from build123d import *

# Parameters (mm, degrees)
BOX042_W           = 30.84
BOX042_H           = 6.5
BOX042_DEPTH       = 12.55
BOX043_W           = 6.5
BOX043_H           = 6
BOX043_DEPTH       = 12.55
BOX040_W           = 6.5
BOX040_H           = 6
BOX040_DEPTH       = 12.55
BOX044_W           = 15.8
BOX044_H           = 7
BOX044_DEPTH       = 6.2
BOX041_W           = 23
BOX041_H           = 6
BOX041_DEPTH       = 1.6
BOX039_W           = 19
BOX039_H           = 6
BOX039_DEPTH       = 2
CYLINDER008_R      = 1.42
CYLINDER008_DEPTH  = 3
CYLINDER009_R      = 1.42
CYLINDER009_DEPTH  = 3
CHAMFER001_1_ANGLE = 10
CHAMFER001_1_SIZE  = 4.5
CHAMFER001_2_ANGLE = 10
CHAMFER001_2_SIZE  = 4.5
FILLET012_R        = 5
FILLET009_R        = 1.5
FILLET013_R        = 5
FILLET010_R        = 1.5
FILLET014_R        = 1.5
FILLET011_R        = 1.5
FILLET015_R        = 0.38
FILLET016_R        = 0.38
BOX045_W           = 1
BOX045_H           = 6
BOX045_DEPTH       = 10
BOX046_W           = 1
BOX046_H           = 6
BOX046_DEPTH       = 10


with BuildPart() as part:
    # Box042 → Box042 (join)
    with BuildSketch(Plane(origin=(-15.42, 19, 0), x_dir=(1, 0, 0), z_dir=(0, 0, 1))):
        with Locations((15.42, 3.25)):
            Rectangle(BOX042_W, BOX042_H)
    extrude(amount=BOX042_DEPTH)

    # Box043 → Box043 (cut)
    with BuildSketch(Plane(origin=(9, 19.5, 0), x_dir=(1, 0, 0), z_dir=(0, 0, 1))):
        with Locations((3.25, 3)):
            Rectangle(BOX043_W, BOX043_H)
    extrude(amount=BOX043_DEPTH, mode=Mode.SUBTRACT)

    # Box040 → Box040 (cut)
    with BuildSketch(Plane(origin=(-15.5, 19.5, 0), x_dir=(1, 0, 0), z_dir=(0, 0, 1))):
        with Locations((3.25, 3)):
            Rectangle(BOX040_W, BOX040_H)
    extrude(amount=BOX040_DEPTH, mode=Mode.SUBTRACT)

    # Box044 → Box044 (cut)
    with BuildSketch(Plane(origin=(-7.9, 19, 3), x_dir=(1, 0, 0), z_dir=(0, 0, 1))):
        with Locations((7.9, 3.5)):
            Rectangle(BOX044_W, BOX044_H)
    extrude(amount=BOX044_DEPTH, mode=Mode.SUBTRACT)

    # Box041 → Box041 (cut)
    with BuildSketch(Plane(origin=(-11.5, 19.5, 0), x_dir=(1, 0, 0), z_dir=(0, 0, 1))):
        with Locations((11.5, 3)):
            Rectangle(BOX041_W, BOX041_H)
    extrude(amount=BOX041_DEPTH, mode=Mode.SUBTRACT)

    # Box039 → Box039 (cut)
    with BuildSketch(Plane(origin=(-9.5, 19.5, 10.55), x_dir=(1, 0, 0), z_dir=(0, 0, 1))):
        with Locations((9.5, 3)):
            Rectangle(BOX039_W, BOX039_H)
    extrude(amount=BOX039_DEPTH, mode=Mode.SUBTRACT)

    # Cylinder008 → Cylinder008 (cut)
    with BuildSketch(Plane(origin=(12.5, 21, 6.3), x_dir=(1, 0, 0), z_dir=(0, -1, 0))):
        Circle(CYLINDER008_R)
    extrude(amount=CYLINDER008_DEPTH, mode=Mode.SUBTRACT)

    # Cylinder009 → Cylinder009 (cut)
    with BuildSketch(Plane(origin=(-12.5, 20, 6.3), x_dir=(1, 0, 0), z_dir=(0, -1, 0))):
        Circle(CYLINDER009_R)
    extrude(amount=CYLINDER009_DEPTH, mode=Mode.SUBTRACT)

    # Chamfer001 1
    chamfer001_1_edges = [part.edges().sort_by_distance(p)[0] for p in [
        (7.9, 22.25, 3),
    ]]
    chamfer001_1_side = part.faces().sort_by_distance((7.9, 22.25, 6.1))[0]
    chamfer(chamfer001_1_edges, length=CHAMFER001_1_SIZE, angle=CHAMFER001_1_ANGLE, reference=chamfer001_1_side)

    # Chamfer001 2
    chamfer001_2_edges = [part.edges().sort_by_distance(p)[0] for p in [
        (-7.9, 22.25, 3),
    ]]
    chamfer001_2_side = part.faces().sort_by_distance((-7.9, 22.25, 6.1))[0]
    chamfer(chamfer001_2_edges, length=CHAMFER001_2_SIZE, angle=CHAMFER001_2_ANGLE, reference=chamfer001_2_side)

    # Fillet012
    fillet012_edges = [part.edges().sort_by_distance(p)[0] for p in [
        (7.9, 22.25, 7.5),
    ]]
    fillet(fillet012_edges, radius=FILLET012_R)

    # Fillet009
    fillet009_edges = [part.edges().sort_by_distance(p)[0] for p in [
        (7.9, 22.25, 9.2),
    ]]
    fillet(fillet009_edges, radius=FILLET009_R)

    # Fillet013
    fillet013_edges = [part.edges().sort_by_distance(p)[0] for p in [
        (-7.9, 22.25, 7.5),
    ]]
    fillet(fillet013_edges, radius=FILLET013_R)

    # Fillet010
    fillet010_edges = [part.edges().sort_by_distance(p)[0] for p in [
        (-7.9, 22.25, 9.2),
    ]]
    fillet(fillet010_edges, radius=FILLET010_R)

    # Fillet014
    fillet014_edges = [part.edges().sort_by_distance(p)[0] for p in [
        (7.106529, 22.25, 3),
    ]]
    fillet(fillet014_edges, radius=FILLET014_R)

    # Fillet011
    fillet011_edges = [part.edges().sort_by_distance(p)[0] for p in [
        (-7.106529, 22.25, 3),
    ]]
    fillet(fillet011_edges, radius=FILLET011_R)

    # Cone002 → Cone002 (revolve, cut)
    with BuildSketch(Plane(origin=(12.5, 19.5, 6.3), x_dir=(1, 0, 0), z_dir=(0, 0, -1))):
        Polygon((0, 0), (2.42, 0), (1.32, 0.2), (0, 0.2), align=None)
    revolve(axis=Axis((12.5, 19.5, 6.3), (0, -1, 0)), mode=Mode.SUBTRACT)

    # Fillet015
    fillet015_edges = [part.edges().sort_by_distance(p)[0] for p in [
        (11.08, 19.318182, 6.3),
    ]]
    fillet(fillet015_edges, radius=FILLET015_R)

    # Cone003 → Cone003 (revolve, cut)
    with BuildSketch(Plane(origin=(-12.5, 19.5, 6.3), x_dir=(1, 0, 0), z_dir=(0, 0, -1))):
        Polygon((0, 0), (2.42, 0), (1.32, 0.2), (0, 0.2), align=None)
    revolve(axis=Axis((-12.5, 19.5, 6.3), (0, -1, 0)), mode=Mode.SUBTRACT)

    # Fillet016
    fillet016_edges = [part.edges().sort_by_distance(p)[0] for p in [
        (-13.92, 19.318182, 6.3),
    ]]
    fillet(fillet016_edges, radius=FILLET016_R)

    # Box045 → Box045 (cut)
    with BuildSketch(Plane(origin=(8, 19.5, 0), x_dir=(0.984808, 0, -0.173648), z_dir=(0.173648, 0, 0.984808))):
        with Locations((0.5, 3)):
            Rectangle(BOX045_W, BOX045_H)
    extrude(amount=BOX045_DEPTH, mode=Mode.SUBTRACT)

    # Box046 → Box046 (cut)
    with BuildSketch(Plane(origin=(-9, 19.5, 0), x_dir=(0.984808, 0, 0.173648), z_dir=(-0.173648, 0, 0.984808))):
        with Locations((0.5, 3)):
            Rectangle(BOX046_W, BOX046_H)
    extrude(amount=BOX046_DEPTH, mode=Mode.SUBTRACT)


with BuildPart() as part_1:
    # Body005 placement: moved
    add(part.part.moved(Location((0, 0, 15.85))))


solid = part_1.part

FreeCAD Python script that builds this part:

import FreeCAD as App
import Part
import Sketcher
from FreeCAD import Vector
Q = App.Units.Quantity


def edges_at(feature, points):
    """Names of the edges that pass closest to the given points."""
    edges = feature.Shape.Edges
    near = lambda p: min(range(len(edges)), key=lambda i: edges[i].distToShape(Part.Vertex(*p))[0])
    return sorted({f"Edge{near(p) + 1}" for p in points})

doc = App.newDocument("Part")
body = doc.addObject("PartDesign::Body", "Body")

# Sketch on XY plane
sketch1 = doc.addObject("Sketcher::SketchObject", "Sketch")
body.addObject(sketch1)
sketch1.AttachmentSupport = (doc.XY_Plane, [""])
sketch1.MapMode = "FlatFace"
sketch1.addGeometry([
    Part.LineSegment(Vector(-15, 26, 0), Vector(-15, 19, 0)),
    Part.LineSegment(Vector(-15, 19, 0), Vector(15, 19, 0)),
    Part.LineSegment(Vector(15, 19, 0), Vector(15, 26, 0)),
    Part.LineSegment(Vector(15, 26, 0), Vector(-15, 26, 0)),
], False)
sketch1.addConstraint([
    Sketcher.Constraint("Coincident", 0, 2, 1, 1),
    Sketcher.Constraint("Coincident", 1, 2, 2, 1),
    Sketcher.Constraint("Coincident", 2, 2, 3, 1),
    Sketcher.Constraint("Coincident", 3, 2, 0, 1),
    Sketcher.Constraint("Vertical", 0),
    Sketcher.Constraint("Horizontal", 1),
    Sketcher.Constraint("Vertical", 2),
    Sketcher.Constraint("Horizontal", 3),
    Sketcher.Constraint("DistanceY", 0, 2, 0, 1, Q("6.5 mm")),
    Sketcher.Constraint("DistanceY", -1, 1, 0, 2, Q("19 mm")),
    Sketcher.Constraint("DistanceX", 1, 1, 1, 2, Q("30.84 mm")),
    Sketcher.Constraint("DistanceX", 0, 2, -1, 1, Q("15.42 mm")),
])
pad1 = doc.addObject("PartDesign::Pad", "Pad")
body.addObject(pad1)
pad1.Profile = sketch1
pad1.Length = 12.55

# Sketch on XY plane
sketch2 = doc.addObject("Sketcher::SketchObject", "Sketch001")
body.addObject(sketch2)
sketch2.AttachmentSupport = (doc.XY_Plane, [""])
sketch2.MapMode = "FlatFace"
sketch2.addGeometry([
    Part.LineSegment(Vector(9, 26, 0), Vector(9, 20, 0)),
    Part.LineSegment(Vector(9, 20, 0), Vector(16, 20, 0)),
    Part.LineSegment(Vector(16, 20, 0), Vector(16, 26, 0)),
    Part.LineSegment(Vector(16, 26, 0), Vector(9, 26, 0)),
], False)
sketch2.addConstraint([
    Sketcher.Constraint("Coincident", 0, 2, 1, 1),
    Sketcher.Constraint("Coincident", 1, 2, 2, 1),
    Sketcher.Constraint("Coincident", 2, 2, 3, 1),
    Sketcher.Constraint("Coincident", 3, 2, 0, 1),
    Sketcher.Constraint("Vertical", 0),
    Sketcher.Constraint("Horizontal", 1),
    Sketcher.Constraint("Vertical", 2),
    Sketcher.Constraint("Horizontal", 3),
    Sketcher.Constraint("DistanceY", 0, 2, 0, 1, Q("6 mm")),
    Sketcher.Constraint("DistanceX", 1, 1, 1, 2, Q("6.5 mm")),
    Sketcher.Constraint("DistanceX", -1, 1, 0, 2, Q("9 mm")),
    Sketcher.Constraint("DistanceY", -1, 1, 0, 2, Q("19.5 mm")),
])
pocket1 = doc.addObject("PartDesign::Pocket", "Pocket")
body.addObject(pocket1)
pocket1.Profile = sketch2
pocket1.Length = 12.55
pocket1.Reversed = True

# Sketch on XY plane
sketch3 = doc.addObject("Sketcher::SketchObject", "Sketch002")
body.addObject(sketch3)
sketch3.AttachmentSupport = (doc.XY_Plane, [""])
sketch3.MapMode = "FlatFace"
sketch3.addGeometry([
    Part.LineSegment(Vector(-16, 26, 0), Vector(-16, 20, 0)),
    Part.LineSegment(Vector(-16, 20, 0), Vector(-9, 20, 0)),
    Part.LineSegment(Vector(-9, 20, 0), Vector(-9, 26, 0)),
    Part.LineSegment(Vector(-9, 26, 0), Vector(-16, 26, 0)),
], False)
sketch3.addConstraint([
    Sketcher.Constraint("Coincident", 0, 2, 1, 1),
    Sketcher.Constraint("Coincident", 1, 2, 2, 1),
    Sketcher.Constraint("Coincident", 2, 2, 3, 1),
    Sketcher.Constraint("Coincident", 3, 2, 0, 1),
    Sketcher.Constraint("Vertical", 0),
    Sketcher.Constraint("Horizontal", 1),
    Sketcher.Constraint("Vertical", 2),
    Sketcher.Constraint("Horizontal", 3),
    Sketcher.Constraint("DistanceY", 0, 2, 0, 1, Q("6 mm")),
    Sketcher.Constraint("DistanceX", 1, 1, 1, 2, Q("6.5 mm")),
    Sketcher.Constraint("DistanceX", 1, 2, -1, 1, Q("9 mm")),
    Sketcher.Constraint("DistanceY", -1, 1, 0, 2, Q("19.5 mm")),
])
pocket2 = doc.addObject("PartDesign::Pocket", "Pocket001")
body.addObject(pocket2)
pocket2.Profile = sketch3
pocket2.Length = 12.55
pocket2.Reversed = True

# Sketch on XY plane
sketch4 = doc.addObject("Sketcher::SketchObject", "Sketch003")
body.addObject(sketch4)
sketch4.AttachmentSupport = (doc.XY_Plane, [""])
sketch4.MapMode = "FlatFace"
sketch4.AttachmentOffset = App.Placement(Vector(0, 0, 3), App.Rotation())
sketch4.addGeometry([
    Part.LineSegment(Vector(-8, 26, 0), Vector(-8, 19, 0)),
    Part.LineSegment(Vector(-8, 19, 0), Vector(8, 19, 0)),
    Part.LineSegment(Vector(8, 19, 0), Vector(8, 26, 0)),
    Part.LineSegment(Vector(8, 26, 0), Vector(-8, 26, 0)),
], False)
sketch4.addConstraint([
    Sketcher.Constraint("Coincident", 0, 2, 1, 1),
    Sketcher.Constraint("Coincident", 1, 2, 2, 1),
    Sketcher.Constraint("Coincident", 2, 2, 3, 1),
    Sketcher.Constraint("Coincident", 3, 2, 0, 1),
    Sketcher.Constraint("Vertical", 0),
    Sketcher.Constraint("Horizontal", 1),
    Sketcher.Constraint("Vertical", 2),
    Sketcher.Constraint("Horizontal", 3),
    Sketcher.Constraint("DistanceY", 0, 2, 0, 1, Q("7 mm")),
    Sketcher.Constraint("DistanceX", 1, 1, 1, 2, Q("15.8 mm")),
    Sketcher.Constraint("DistanceY", -1, 1, 0, 2, Q("19 mm")),
    Sketcher.Constraint("DistanceX", 0, 2, -1, 1, Q("7.9 mm")),
])
pocket3 = doc.addObject("PartDesign::Pocket", "Pocket002")
body.addObject(pocket3)
pocket3.Profile = sketch4
pocket3.Length = 6.2
pocket3.Reversed = True

# Sketch on XY plane
sketch5 = doc.addObject("Sketcher::SketchObject", "Sketch004")
body.addObject(sketch5)
sketch5.AttachmentSupport = (doc.XY_Plane, [""])
sketch5.MapMode = "FlatFace"
sketch5.addGeometry([
    Part.LineSegment(Vector(-12, 26, 0), Vector(-12, 20, 0)),
    Part.LineSegment(Vector(-12, 20, 0), Vector(12, 20, 0)),
    Part.LineSegment(Vector(12, 20, 0), Vector(12, 26, 0)),
    Part.LineSegment(Vector(12, 26, 0), Vector(-12, 26, 0)),
], False)
sketch5.addConstraint([
    Sketcher.Constraint("Coincident", 0, 2, 1, 1),
    Sketcher.Constraint("Coincident", 1, 2, 2, 1),
    Sketcher.Constraint("Coincident", 2, 2, 3, 1),
    Sketcher.Constraint("Coincident", 3, 2, 0, 1),
    Sketcher.Constraint("Vertical", 0),
    Sketcher.Constraint("Horizontal", 1),
    Sketcher.Constraint("Vertical", 2),
    Sketcher.Constraint("Horizontal", 3),
    Sketcher.Constraint("DistanceX", 1, 1, 1, 2, Q("23 mm")),
    Sketcher.Constraint("DistanceY", 0, 2, 0, 1, Q("6 mm")),
    Sketcher.Constraint("DistanceX", 0, 2, -1, 1, Q("11.5 mm")),
    Sketcher.Constraint("DistanceY", -1, 1, 0, 2, Q("19.5 mm")),
])
pocket4 = doc.addObject("PartDesign::Pocket", "Pocket003")
body.addObject(pocket4)
pocket4.Profile = sketch5
pocket4.Length = 1.6
pocket4.Reversed = True

# Sketch on XY plane
sketch6 = doc.addObject("Sketcher::SketchObject", "Sketch005")
body.addObject(sketch6)
sketch6.AttachmentSupport = (doc.XY_Plane, [""])
sketch6.MapMode = "FlatFace"
sketch6.AttachmentOffset = App.Placement(Vector(0, 0, 10.55), App.Rotation())
sketch6.addGeometry([
    Part.LineSegment(Vector(-10, 26, 0), Vector(-10, 20, 0)),
    Part.LineSegment(Vector(-10, 20, 0), Vector(10, 20, 0)),
    Part.LineSegment(Vector(10, 20, 0), Vector(10, 26, 0)),
    Part.LineSegment(Vector(10, 26, 0), Vector(-10, 26, 0)),
], False)
sketch6.addConstraint([
    Sketcher.Constraint("Coincident", 0, 2, 1, 1),
    Sketcher.Constraint("Coincident", 1, 2, 2, 1),
    Sketcher.Constraint("Coincident", 2, 2, 3, 1),
    Sketcher.Constraint("Coincident", 3, 2, 0, 1),
    Sketcher.Constraint("Vertical", 0),
    Sketcher.Constraint("Horizontal", 1),
    Sketcher.Constraint("Vertical", 2),
    Sketcher.Constraint("Horizontal", 3),
    Sketcher.Constraint("DistanceX", 1, 1, 1, 2, Q("19 mm")),
    Sketcher.Constraint("DistanceY", 0, 2, 0, 1, Q("6 mm")),
    Sketcher.Constraint("DistanceX", 0, 2, -1, 1, Q("9.5 mm")),
    Sketcher.Constraint("DistanceY", -1, 1, 0, 2, Q("19.5 mm")),
])
pocket5 = doc.addObject("PartDesign::Pocket", "Pocket004")
body.addObject(pocket5)
pocket5.Profile = sketch6
pocket5.Length = 2
pocket5.Reversed = True

# Sketch on XZ plane
sketch7 = doc.addObject("Sketcher::SketchObject", "Sketch006")
body.addObject(sketch7)
sketch7.AttachmentSupport = (doc.XZ_Plane, [""])
sketch7.MapMode = "FlatFace"
sketch7.AttachmentOffset = App.Placement(Vector(0, 0, -21), App.Rotation())
sketch7.addGeometry(Part.Circle(Vector(12.5, 6.3, 0), Vector(0, 0, 1), 1.4), False)
sketch7.addConstraint([
    Sketcher.Constraint("Diameter", 0, Q("2.84 mm")),
    Sketcher.Constraint("DistanceX", -1, 1, 0, 3, Q("12.5 mm")),
    Sketcher.Constraint("DistanceY", -1, 1, 0, 3, Q("6.3 mm")),
])
pocket6 = doc.addObject("PartDesign::Pocket", "Pocket005")
body.addObject(pocket6)
pocket6.Profile = sketch7
pocket6.Length = 3
pocket6.Reversed = True

# Sketch on XZ plane
sketch8 = doc.addObject("Sketcher::SketchObject", "Sketch007")
body.addObject(sketch8)
sketch8.AttachmentSupport = (doc.XZ_Plane, [""])
sketch8.MapMode = "FlatFace"
sketch8.AttachmentOffset = App.Placement(Vector(0, 0, -20), App.Rotation())
sketch8.addGeometry(Part.Circle(Vector(-12.5, 6.3, 0), Vector(0, 0, 1), 1.4), False)
sketch8.addConstraint([
    Sketcher.Constraint("Diameter", 0, Q("2.84 mm")),
    Sketcher.Constraint("DistanceX", 0, 3, -1, 1, Q("12.5 mm")),
    Sketcher.Constraint("DistanceY", -1, 1, 0, 3, Q("6.3 mm")),
])
pocket7 = doc.addObject("PartDesign::Pocket", "Pocket006")
body.addObject(pocket7)
pocket7.Profile = sketch8
pocket7.Length = 3
pocket7.Reversed = True
doc.recompute()

chamfer = doc.addObject("PartDesign::Chamfer", "Chamfer")
body.addObject(chamfer)
chamfer.Base = (pocket7, edges_at(pocket7, [(7.9, 22.25, 3)]))
chamfer.ChamferType = "Distance and Angle"
chamfer.Size = 4.5
chamfer.Angle = 10
chamfer.FlipDirection = True
doc.recompute()

chamfer2 = doc.addObject("PartDesign::Chamfer", "Chamfer001")
body.addObject(chamfer2)
chamfer2.Base = (chamfer, edges_at(chamfer, [(-7.9, 22.25, 3)]))
chamfer2.ChamferType = "Distance and Angle"
chamfer2.Size = 4.5
chamfer2.Angle = 10
chamfer2.FlipDirection = True
doc.recompute()

fillet = doc.addObject("PartDesign::Fillet", "Fillet")
body.addObject(fillet)
fillet.Base = (chamfer2, edges_at(chamfer2, [(7.9, 22.25, 7.5)]))
fillet.Radius = 5
doc.recompute()

fillet2 = doc.addObject("PartDesign::Fillet", "Fillet001")
body.addObject(fillet2)
fillet2.Base = (fillet, edges_at(fillet, [(7.9, 22.25, 9.2)]))
fillet2.Radius = 1.5
doc.recompute()

fillet3 = doc.addObject("PartDesign::Fillet", "Fillet002")
body.addObject(fillet3)
fillet3.Base = (fillet2, edges_at(fillet2, [(-7.9, 22.25, 7.5)]))
fillet3.Radius = 5
doc.recompute()

fillet4 = doc.addObject("PartDesign::Fillet", "Fillet003")
body.addObject(fillet4)
fillet4.Base = (fillet3, edges_at(fillet3, [(-7.9, 22.25, 9.2)]))
fillet4.Radius = 1.5
doc.recompute()

fillet5 = doc.addObject("PartDesign::Fillet", "Fillet004")
body.addObject(fillet5)
fillet5.Base = (fillet4, edges_at(fillet4, [(7.107, 22.25, 3)]))
fillet5.Radius = 1.5
doc.recompute()

fillet6 = doc.addObject("PartDesign::Fillet", "Fillet005")
body.addObject(fillet6)
fillet6.Base = (fillet5, edges_at(fillet5, [(-7.107, 22.25, 3)]))
fillet6.Radius = 1.5

# Sketch on XY plane
sketch9 = doc.addObject("Sketcher::SketchObject", "Sketch008")
body.addObject(sketch9)
sketch9.AttachmentSupport = (doc.XY_Plane, [""])
sketch9.MapMode = "FlatFace"
sketch9.AttachmentOffset = App.Placement(Vector(0, 0, 6.3), App.Rotation())
sketch9.addGeometry([
    Part.LineSegment(Vector(12.5, 19.5, 0), Vector(14.92, 19.5, 0)),
    Part.LineSegment(Vector(14.92, 19.5, 0), Vector(13.82, 19.3, 0)),
    Part.LineSegment(Vector(13.82, 19.3, 0), Vector(12.5, 19.3, 0)),
    Part.LineSegment(Vector(12.5, 19.3, 0), Vector(12.5, 19.5, 0)),
], False)
sketch9.addGeometry(Part.LineSegment(Vector(12.5, 19.5, 0), Vector(12.5, 19.3, 0)), True)  # axis
sketch9.addConstraint([
    Sketcher.Constraint("Coincident", 0, 2, 1, 1),
    Sketcher.Constraint("Coincident", 1, 2, 2, 1),
    Sketcher.Constraint("Coincident", 2, 2, 3, 1),
    Sketcher.Constraint("Coincident", 3, 2, 0, 1),
    Sketcher.Constraint("Horizontal", 0),
    Sketcher.Constraint("Horizontal", 2),
    Sketcher.Constraint("Vertical", 3),
    Sketcher.Constraint("Vertical", 4),
    Sketcher.Constraint("Coincident", 4, 1, 3, 2),
    Sketcher.Constraint("Horizontal", 1, 2, 4, 2),
    Sketcher.Constraint("DistanceY", 3, 1, 3, 2, Q("0.2 mm")),
    Sketcher.Constraint("DistanceX", 0, 1, 0, 2, Q("2.42 mm")),
    Sketcher.Constraint("DistanceX", 2, 2, 2, 1, Q("1.32 mm")),
    Sketcher.Constraint("DistanceY", -1, 1, 0, 2, Q("19.5 mm")),
    Sketcher.Constraint("DistanceX", -1, 1, 2, 2, Q("12.5 mm")),
])
groove = doc.addObject("PartDesign::Groove", "Groove")
body.addObject(groove)
groove.Profile = sketch9
groove.ReferenceAxis = (sketch9, ["Axis0"])
groove.Angle = 360
doc.recompute()

fillet7 = doc.addObject("PartDesign::Fillet", "Fillet006")
body.addObject(fillet7)
fillet7.Base = (groove, edges_at(groove, [(11.08, 19.318, 6.3)]))
fillet7.Radius = 0.38

# Sketch on XY plane
sketch10 = doc.addObject("Sketcher::SketchObject", "Sketch009")
body.addObject(sketch10)
sketch10.AttachmentSupport = (doc.XY_Plane, [""])
sketch10.MapMode = "FlatFace"
sketch10.AttachmentOffset = App.Placement(Vector(0, 0, 6.3), App.Rotation())
sketch10.addGeometry([
    Part.LineSegment(Vector(-12.5, 19.5, 0), Vector(-10.08, 19.5, 0)),
    Part.LineSegment(Vector(-10.08, 19.5, 0), Vector(-11.18, 19.3, 0)),
    Part.LineSegment(Vector(-11.18, 19.3, 0), Vector(-12.5, 19.3, 0)),
    Part.LineSegment(Vector(-12.5, 19.3, 0), Vector(-12.5, 19.5, 0)),
], False)
sketch10.addGeometry(Part.LineSegment(Vector(-12.5, 19.5, 0), Vector(-12.5, 19.3, 0)), True)  # axis
sketch10.addConstraint([
    Sketcher.Constraint("Coincident", 0, 2, 1, 1),
    Sketcher.Constraint("Coincident", 1, 2, 2, 1),
    Sketcher.Constraint("Coincident", 2, 2, 3, 1),
    Sketcher.Constraint("Coincident", 3, 2, 0, 1),
    Sketcher.Constraint("Horizontal", 0),
    Sketcher.Constraint("Horizontal", 2),
    Sketcher.Constraint("Vertical", 3),
    Sketcher.Constraint("Vertical", 4),
    Sketcher.Constraint("Coincident", 4, 1, 3, 2),
    Sketcher.Constraint("Horizontal", 1, 2, 4, 2),
    Sketcher.Constraint("DistanceY", 3, 1, 3, 2, Q("0.2 mm")),
    Sketcher.Constraint("DistanceX", 0, 1, 0, 2, Q("2.42 mm")),
    Sketcher.Constraint("DistanceX", 2, 2, 2, 1, Q("1.32 mm")),
    Sketcher.Constraint("DistanceY", -1, 1, 0, 2, Q("19.5 mm")),
    Sketcher.Constraint("DistanceX", 2, 2, -1, 1, Q("12.5 mm")),
])
groove2 = doc.addObject("PartDesign::Groove", "Groove001")
body.addObject(groove2)
groove2.Profile = sketch10
groove2.ReferenceAxis = (sketch10, ["Axis0"])
groove2.Angle = 360
doc.recompute()

fillet8 = doc.addObject("PartDesign::Fillet", "Fillet007")
body.addObject(fillet8)
fillet8.Base = (groove2, edges_at(groove2, [(-13.92, 19.318, 6.3)]))
fillet8.Radius = 0.38

# Sketch on an angled plane
sketch11 = doc.addObject("Sketcher::SketchObject", "Sketch010")
body.addObject(sketch11)
sketch11.Placement = App.Placement(Vector(8, 19.5, 0), App.Rotation(Vector(0.984807791, 0, -0.173647963), Vector(0, 1, 0), Vector(0.173647963, 0, 0.984807791), "ZXY"))
sketch11.addGeometry([
    Part.LineSegment(Vector(0, 6, 0), Vector(0, 0, 0)),
    Part.LineSegment(Vector(0, 0, 0), Vector(1, 0, 0)),
    Part.LineSegment(Vector(1, 0, 0), Vector(1, 6, 0)),
    Part.LineSegment(Vector(1, 6, 0), Vector(0, 6, 0)),
], False)
sketch11.addConstraint([
    Sketcher.Constraint("Coincident", 0, 2, 1, 1),
    Sketcher.Constraint("Coincident", 1, 2, 2, 1),
    Sketcher.Constraint("Coincident", 2, 2, 3, 1),
    Sketcher.Constraint("Coincident", 3, 2, 0, 1),
    Sketcher.Constraint("Vertical", 0),
    Sketcher.Constraint("Horizontal", 1),
    Sketcher.Constraint("Vertical", 2),
    Sketcher.Constraint("Horizontal", 3),
    Sketcher.Constraint("Coincident", 0, 2, -1, 1),
    Sketcher.Constraint("DistanceX", 1, 1, 1, 2, Q("1 mm")),
    Sketcher.Constraint("DistanceY", 0, 2, 0, 1, Q("6 mm")),
])
pocket8 = doc.addObject("PartDesign::Pocket", "Pocket007")
body.addObject(pocket8)
pocket8.Profile = sketch11
pocket8.Length = 10
pocket8.Reversed = True

# Sketch on an angled plane
sketch12 = doc.addObject("Sketcher::SketchObject", "Sketch011")
body.addObject(sketch12)
sketch12.Placement = App.Placement(Vector(-9, 19.5, 0), App.Rotation(Vector(0.984807791, 0, 0.173647963), Vector(0, 1, 0), Vector(-0.173647963, 0, 0.984807791), "ZXY"))
sketch12.addGeometry([
    Part.LineSegment(Vector(0, 6, 0), Vector(0, 0, 0)),
    Part.LineSegment(Vector(0, 0, 0), Vector(1, 0, 0)),
    Part.LineSegment(Vector(1, 0, 0), Vector(1, 6, 0)),
    Part.LineSegment(Vector(1, 6, 0), Vector(0, 6, 0)),
], False)
sketch12.addConstraint([
    Sketcher.Constraint("Coincident", 0, 2, 1, 1),
    Sketcher.Constraint("Coincident", 1, 2, 2, 1),
    Sketcher.Constraint("Coincident", 2, 2, 3, 1),
    Sketcher.Constraint("Coincident", 3, 2, 0, 1),
    Sketcher.Constraint("Vertical", 0),
    Sketcher.Constraint("Horizontal", 1),
    Sketcher.Constraint("Vertical", 2),
    Sketcher.Constraint("Horizontal", 3),
    Sketcher.Constraint("Coincident", 0, 2, -1, 1),
    Sketcher.Constraint("DistanceX", 1, 1, 1, 2, Q("1 mm")),
    Sketcher.Constraint("DistanceY", 0, 2, 0, 1, Q("6 mm")),
])
pocket9 = doc.addObject("PartDesign::Pocket", "Pocket008")
body.addObject(pocket9)
pocket9.Profile = sketch12
pocket9.Length = 10
pocket9.Reversed = True
body2 = doc.addObject("PartDesign::Body", "Body001")
doc.recompute()

body.Placement = App.Placement(Vector(0, 0, 15.85), App.Rotation(Vector(0, 0, 1), 0))
boolean = doc.addObject("PartDesign::Boolean", "Boolean")
body2.addObject(boolean)
boolean.Type = "Fuse"
boolean.addObjects([body])

doc.recompute()
